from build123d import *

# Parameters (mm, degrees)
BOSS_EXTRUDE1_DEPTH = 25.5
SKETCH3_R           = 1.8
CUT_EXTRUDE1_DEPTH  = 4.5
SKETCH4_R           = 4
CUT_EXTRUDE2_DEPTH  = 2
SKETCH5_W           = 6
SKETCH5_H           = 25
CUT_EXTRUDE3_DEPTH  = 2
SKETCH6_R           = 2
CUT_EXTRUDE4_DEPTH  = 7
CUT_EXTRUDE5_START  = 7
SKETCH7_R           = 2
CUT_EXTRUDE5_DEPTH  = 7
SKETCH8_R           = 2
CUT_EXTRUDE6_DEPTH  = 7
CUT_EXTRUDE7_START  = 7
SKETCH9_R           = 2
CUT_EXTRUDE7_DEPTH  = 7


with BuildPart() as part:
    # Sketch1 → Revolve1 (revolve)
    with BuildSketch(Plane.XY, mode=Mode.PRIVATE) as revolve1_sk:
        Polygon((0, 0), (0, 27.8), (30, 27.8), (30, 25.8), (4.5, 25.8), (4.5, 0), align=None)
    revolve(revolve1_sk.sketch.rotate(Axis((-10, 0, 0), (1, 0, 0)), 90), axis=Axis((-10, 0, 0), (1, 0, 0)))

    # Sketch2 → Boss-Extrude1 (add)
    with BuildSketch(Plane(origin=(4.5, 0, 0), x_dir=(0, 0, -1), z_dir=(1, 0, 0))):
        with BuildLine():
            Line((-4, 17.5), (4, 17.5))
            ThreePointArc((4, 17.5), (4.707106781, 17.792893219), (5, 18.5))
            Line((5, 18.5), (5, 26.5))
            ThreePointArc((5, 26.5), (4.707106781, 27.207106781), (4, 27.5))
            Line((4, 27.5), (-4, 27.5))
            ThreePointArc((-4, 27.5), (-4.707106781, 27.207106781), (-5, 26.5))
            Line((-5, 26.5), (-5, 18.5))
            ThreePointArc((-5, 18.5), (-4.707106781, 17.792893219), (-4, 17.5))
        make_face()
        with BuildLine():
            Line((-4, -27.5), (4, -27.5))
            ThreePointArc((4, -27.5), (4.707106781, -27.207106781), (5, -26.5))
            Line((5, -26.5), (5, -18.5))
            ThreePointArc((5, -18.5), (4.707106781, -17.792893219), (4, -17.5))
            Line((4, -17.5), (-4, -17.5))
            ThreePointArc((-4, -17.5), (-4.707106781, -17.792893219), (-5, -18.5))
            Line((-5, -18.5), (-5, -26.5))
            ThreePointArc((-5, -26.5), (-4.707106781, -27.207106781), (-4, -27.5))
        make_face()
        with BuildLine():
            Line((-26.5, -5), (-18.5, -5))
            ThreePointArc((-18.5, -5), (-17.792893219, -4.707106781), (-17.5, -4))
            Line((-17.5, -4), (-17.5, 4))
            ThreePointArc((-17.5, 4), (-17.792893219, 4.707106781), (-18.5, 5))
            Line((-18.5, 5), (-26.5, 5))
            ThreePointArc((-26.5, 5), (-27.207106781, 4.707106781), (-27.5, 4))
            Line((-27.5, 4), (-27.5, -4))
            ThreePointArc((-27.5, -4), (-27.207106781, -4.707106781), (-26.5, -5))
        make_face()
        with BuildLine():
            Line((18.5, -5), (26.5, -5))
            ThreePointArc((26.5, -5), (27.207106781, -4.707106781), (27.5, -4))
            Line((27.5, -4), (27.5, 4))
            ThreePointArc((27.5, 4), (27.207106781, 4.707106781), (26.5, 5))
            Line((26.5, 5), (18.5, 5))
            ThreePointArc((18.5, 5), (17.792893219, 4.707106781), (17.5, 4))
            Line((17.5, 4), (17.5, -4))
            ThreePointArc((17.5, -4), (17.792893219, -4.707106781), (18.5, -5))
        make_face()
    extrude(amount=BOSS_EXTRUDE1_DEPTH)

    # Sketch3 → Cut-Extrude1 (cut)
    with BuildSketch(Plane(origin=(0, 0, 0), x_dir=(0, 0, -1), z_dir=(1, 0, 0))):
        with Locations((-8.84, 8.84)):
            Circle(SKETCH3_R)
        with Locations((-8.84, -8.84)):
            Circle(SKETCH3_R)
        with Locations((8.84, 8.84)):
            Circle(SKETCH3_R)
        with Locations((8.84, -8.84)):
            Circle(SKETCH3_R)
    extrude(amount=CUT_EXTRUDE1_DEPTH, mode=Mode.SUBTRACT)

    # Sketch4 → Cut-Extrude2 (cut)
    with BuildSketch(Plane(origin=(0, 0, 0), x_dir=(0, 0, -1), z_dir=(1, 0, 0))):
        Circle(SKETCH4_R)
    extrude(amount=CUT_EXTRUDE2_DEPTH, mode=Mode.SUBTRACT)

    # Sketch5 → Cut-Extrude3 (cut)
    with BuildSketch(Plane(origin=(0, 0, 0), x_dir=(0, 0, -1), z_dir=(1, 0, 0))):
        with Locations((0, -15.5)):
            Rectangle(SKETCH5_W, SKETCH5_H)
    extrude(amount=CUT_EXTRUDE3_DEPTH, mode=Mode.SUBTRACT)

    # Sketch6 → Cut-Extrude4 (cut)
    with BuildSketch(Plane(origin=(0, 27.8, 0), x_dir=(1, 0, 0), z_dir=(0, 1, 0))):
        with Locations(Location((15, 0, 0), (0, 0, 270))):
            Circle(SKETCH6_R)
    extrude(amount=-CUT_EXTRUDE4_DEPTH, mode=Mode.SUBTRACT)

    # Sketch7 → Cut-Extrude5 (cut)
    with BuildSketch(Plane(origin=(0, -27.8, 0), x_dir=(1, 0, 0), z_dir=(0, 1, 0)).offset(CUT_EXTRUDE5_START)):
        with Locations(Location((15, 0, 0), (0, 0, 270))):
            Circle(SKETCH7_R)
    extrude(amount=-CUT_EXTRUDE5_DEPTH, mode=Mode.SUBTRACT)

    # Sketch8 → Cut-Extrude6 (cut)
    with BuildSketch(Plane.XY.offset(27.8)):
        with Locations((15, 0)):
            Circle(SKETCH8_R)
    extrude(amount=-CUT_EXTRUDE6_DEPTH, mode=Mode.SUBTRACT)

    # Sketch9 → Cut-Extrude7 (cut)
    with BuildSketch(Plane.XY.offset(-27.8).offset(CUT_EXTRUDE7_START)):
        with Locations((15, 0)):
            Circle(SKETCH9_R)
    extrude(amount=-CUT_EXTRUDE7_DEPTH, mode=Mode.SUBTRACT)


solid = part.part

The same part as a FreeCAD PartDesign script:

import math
import FreeCAD as App
import Part
import Sketcher
from FreeCAD import Vector
Q = App.Units.Quantity


def add_polygon(sketch, points):
    """Adds a closed chain of lines whose ends are joined by coincident constraints."""
    first, n = sketch.GeometryCount, len(points)
    for a, b in zip(points, points[1:] + points[:1]):
        sketch.addGeometry(Part.LineSegment(App.Vector(*a, 0), App.Vector(*b, 0)), False)
    for i in range(n):
        sketch.addConstraint(Sketcher.Constraint("Coincident", first + i, 2, first + (i + 1) % n, 1))

doc = App.newDocument("Part")
body = doc.addObject("PartDesign::Body", "Body")

sketch1 = doc.addObject("Sketcher::SketchObject", "Sketch")
body.addObject(sketch1)
sketch1.AttachmentSupport = (doc.XY_Plane, [""])
sketch1.MapMode = "FlatFace"
add_polygon(sketch1, [(0, 27.8), (0, 0), (4.5, 0), (4.5, 25.8), (30, 25.8), (30, 27.8)])
sketch1.addConstraint([
    Sketcher.Constraint("Vertical", 0),
    Sketcher.Constraint("Horizontal", 1),
    Sketcher.Constraint("Vertical", 2),
    Sketcher.Constraint("Horizontal", 3),
    Sketcher.Constraint("Vertical", 4),
    Sketcher.Constraint("Horizontal", 5),
    Sketcher.Constraint("Coincident", 0, 2, -1, 1),
    Sketcher.Constraint("DistanceX", 5, 2, 5, 1, Q("30 mm")),
    Sketcher.Constraint("DistanceY", 4, 1, 4, 2, Q("2 mm")),
    Sketcher.Constraint("DistanceX", 1, 1, 1, 2, Q("4.5 mm")),
    Sketcher.Constraint("DistanceY", 0, 2, 0, 1, Q("27.8 mm")),
])
revolution = doc.addObject("PartDesign::Revolution", "Revolution")
body.addObject(revolution)
revolution.Profile = sketch1
revolution.ReferenceAxis = (sketch1, ["H_Axis"])
revolution.Angle = 360

sketch2 = doc.addObject("Sketcher::SketchObject", "Sketch001")
body.addObject(sketch2)
sketch2.AttachmentSupport = (doc.YZ_Plane, [""])
sketch2.MapMode = "FlatFace"
sketch2.AttachmentOffset = App.Placement(Vector(0, 0, 4.5), App.Rotation())
sketch2.addGeometry([
    Part.LineSegment(Vector(17.5, 4, 0), Vector(17.5, -4, 0)),
    Part.ArcOfCircle(Part.Circle(Vector(18.5, -4, 0), Vector(0, 0, 1), 1), math.radians(-180), math.radians(-90)),
    Part.LineSegment(Vector(18.5, -5, 0), Vector(26.5, -5, 0)),
    Part.ArcOfCircle(Part.Circle(Vector(26.5, -4, 0), Vector(0, 0, 1), 1), math.radians(-90), math.radians(0)),
    Part.LineSegment(Vector(27.5, -4, 0), Vector(27.5, 4, 0)),
    Part.ArcOfCircle(Part.Circle(Vector(26.5, 4, 0), Vector(0, 0, 1), 1), math.radians(0), math.radians(90)),
    Part.LineSegment(Vector(26.5, 5, 0), Vector(18.5, 5, 0)),
    Part.ArcOfCircle(Part.Circle(Vector(18.5, 4, 0), Vector(0, 0, 1), 1), math.radians(90), math.radians(180)),
    Part.LineSegment(Vector(-27.5, 4, 0), Vector(-27.5, -4, 0)),
    Part.ArcOfCircle(Part.Circle(Vector(-26.5, -4, 0), Vector(0, 0, 1), 1), math.radians(-180), math.radians(-90)),
    Part.LineSegment(Vector(-26.5, -5, 0), Vector(-18.5, -5, 0)),
    Part.ArcOfCircle(Part.Circle(Vector(-18.5, -4, 0), Vector(0, 0, 1), 1), math.radians(-90), math.radians(0)),
    Part.LineSegment(Vector(-17.5, -4, 0), Vector(-17.5, 4, 0)),
    Part.ArcOfCircle(Part.Circle(Vector(-18.5, 4, 0), Vector(0, 0, 1), 1), math.radians(0), math.radians(90)),
    Part.LineSegment(Vector(-18.5, 5, 0), Vector(-26.5, 5, 0)),
    Part.ArcOfCircle(Part.Circle(Vector(-26.5, 4, 0), Vector(0, 0, 1), 1), math.radians(90), math.radians(180)),
    Part.LineSegment(Vector(-5, 26.5, 0), Vector(-5, 18.5, 0)),
    Part.ArcOfCircle(Part.Circle(Vector(-4, 18.5, 0), Vector(0, 0, 1), 1), math.radians(-180), math.radians(-90)),
    Part.LineSegment(Vector(-4, 17.5, 0), Vector(4, 17.5, 0)),
    Part.ArcOfCircle(Part.Circle(Vector(4, 18.5, 0), Vector(0, 0, 1), 1), math.radians(-90), math.radians(0)),
    Part.LineSegment(Vector(5, 18.5, 0), Vector(5, 26.5, 0)),
    Part.ArcOfCircle(Part.Circle(Vector(4, 26.5, 0), Vector(0, 0, 1), 1), math.radians(0), math.radians(90)),
    Part.LineSegment(Vector(4, 27.5, 0), Vector(-4, 27.5, 0)),
    Part.ArcOfCircle(Part.Circle(Vector(-4, 26.5, 0), Vector(0, 0, 1), 1), math.radians(90), math.radians(180)),
    Part.LineSegment(Vector(-5, -18.5, 0), Vector(-5, -26.5, 0)),
    Part.ArcOfCircle(Part.Circle(Vector(-4, -26.5, 0), Vector(0, 0, 1), 1), math.radians(-180), math.radians(-90)),
    Part.LineSegment(Vector(-4, -27.5, 0), Vector(4, -27.5, 0)),
    Part.ArcOfCircle(Part.Circle(Vector(4, -26.5, 0), Vector(0, 0, 1), 1), math.radians(-90), math.radians(0)),
    Part.LineSegment(Vector(5, -26.5, 0), Vector(5, -18.5, 0)),
    Part.ArcOfCircle(Part.Circle(Vector(4, -18.5, 0), Vector(0, 0, 1), 1), math.radians(0), math.radians(90)),
    Part.LineSegment(Vector(4, -17.5, 0), Vector(-4, -17.5, 0)),
    Part.ArcOfCircle(Part.Circle(Vector(-4, -18.5, 0), Vector(0, 0, 1), 1), math.radians(90), math.radians(180)),
], False)
sketch2.addConstraint([
    Sketcher.Constraint("Tangent", 0, 2, 1, 1),
    Sketcher.Constraint("Tangent", 1, 2, 2, 1),
    Sketcher.Constraint("Tangent", 2, 2, 3, 1),
    Sketcher.Constraint("Tangent", 3, 2, 4, 1),
    Sketcher.Constraint("Tangent", 4, 2, 5, 1),
    Sketcher.Constraint("Tangent", 5, 2, 6, 1),
    Sketcher.Constraint("Tangent", 6, 2, 7, 1),
    Sketcher.Constraint("Tangent", 7, 2, 0, 1),
    Sketcher.Constraint("Tangent", 8, 2, 9, 1),
    Sketcher.Constraint("Tangent", 9, 2, 10, 1),
    Sketcher.Constraint("Tangent", 10, 2, 11, 1),
    Sketcher.Constraint("Tangent", 11, 2, 12, 1),
    Sketcher.Constraint("Tangent", 12, 2, 13, 1),
    Sketcher.Constraint("Tangent", 13, 2, 14, 1),
    Sketcher.Constraint("Tangent", 14, 2, 15, 1),
    Sketcher.Constraint("Tangent", 15, 2, 8, 1),
    Sketcher.Constraint("Tangent", 16, 2, 17, 1),
    Sketcher.Constraint("Tangent", 17, 2, 18, 1),
    Sketcher.Constraint("Tangent", 18, 2, 19, 1),
    Sketcher.Constraint("Tangent", 19, 2, 20, 1),
    Sketcher.Constraint("Tangent", 20, 2, 21, 1),
    Sketcher.Constraint("Tangent", 21, 2, 22, 1),
    Sketcher.Constraint("Tangent", 22, 2, 23, 1),
    Sketcher.Constraint("Tangent", 23, 2, 16, 1),
    Sketcher.Constraint("Tangent", 24, 2, 25, 1),
    Sketcher.Constraint("Tangent", 25, 2, 26, 1),
    Sketcher.Constraint("Tangent", 26, 2, 27, 1),
    Sketcher.Constraint("Tangent", 27, 2, 28, 1),
    Sketcher.Constraint("Tangent", 28, 2, 29, 1),
    Sketcher.Constraint("Tangent", 29, 2, 30, 1),
    Sketcher.Constraint("Tangent", 30, 2, 31, 1),
    Sketcher.Constraint("Tangent", 31, 2, 24, 1),
    Sketcher.Constraint("Vertical", 0),
    Sketcher.Constraint("Horizontal", 2),
    Sketcher.Constraint("Vertical", 4),
    Sketcher.Constraint("Horizontal", 6),
    Sketcher.Constraint("Vertical", 8),
    Sketcher.Constraint("Horizontal", 10),
    Sketcher.Constraint("Vertical", 12),
    Sketcher.Constraint("Horizontal", 14),
    Sketcher.Constraint("Vertical", 16),
    Sketcher.Constraint("Horizontal", 18),
    Sketcher.Constraint("Vertical", 20),
    Sketcher.Constraint("Horizontal", 22),
    Sketcher.Constraint("Vertical", 24),
    Sketcher.Constraint("Horizontal", 26),
    Sketcher.Constraint("Vertical", 28),
    Sketcher.Constraint("Horizontal", 30),
    Sketcher.Constraint("Equal", 1, 3),
    Sketcher.Constraint("Equal", 3, 5),
    Sketcher.Constraint("Equal", 5, 7),
    Sketcher.Constraint("Equal", 7, 9),
    Sketcher.Constraint("Equal", 9, 11),
    Sketcher.Constraint("Equal", 11, 13),
    Sketcher.Constraint("Equal", 13, 15),
    Sketcher.Constraint("Equal", 15, 17),
    Sketcher.Constraint("Equal", 17, 19),
    Sketcher.Constraint("Equal", 19, 21),
    Sketcher.Constraint("Equal", 21, 23),
    Sketcher.Constraint("Equal", 23, 25),
    Sketcher.Constraint("Equal", 25, 27),
    Sketcher.Constraint("Equal", 27, 29),
    Sketcher.Constraint("Equal", 29, 31),
    Sketcher.Constraint("Symmetric", 5, 3, 9, 3, -1, 1),
    Sketcher.Constraint("Symmetric", 1, 3, 13, 3, -1, 1),
    Sketcher.Constraint("Symmetric", 21, 3, 25, 3, -1, 1),
    Sketcher.Constraint("Symmetric", 17, 3, 29, 3, -1, 1),
    Sketcher.Constraint("Horizontal", 3, 3, 9, 3),
    Sketcher.Constraint("Vertical", 23, 3, 25, 3),
    Sketcher.Constraint("Equal", 14, 18),
    Sketcher.Constraint("Equal", 30, 0),
    Sketcher.Constraint("Equal", 12, 16),
    Sketcher.Constraint("Radius", 1, Q("1 mm")),
    Sketcher.Constraint("DistanceX", 2, 1, 2, 2, Q("8 mm")),
    Sketcher.Constraint("DistanceX", 9, 3, 1, 3, Q("45 mm")),
    Sketcher.Constraint("DistanceY", -1, 1, 17, 3, Q("18.5 mm")),
])
pad1 = doc.addObject("PartDesign::Pad", "Pad")
body.addObject(pad1)
pad1.Profile = sketch2
pad1.Length = 25.5

sketch3 = doc.addObject("Sketcher::SketchObject", "Sketch002")
body.addObject(sketch3)
sketch3.AttachmentSupport = (doc.YZ_Plane, [""])
sketch3.MapMode = "FlatFace"
sketch3.addGeometry([
    Part.Circle(Vector(8.84, 8.84, 0), Vector(0, 0, 1), 1.8),
    Part.Circle(Vector(-8.84, 8.84, 0), Vector(0, 0, 1), 1.8),
    Part.Circle(Vector(8.84, -8.84, 0), Vector(0, 0, 1), 1.8),
    Part.Circle(Vector(-8.84, -8.84, 0), Vector(0, 0, 1), 1.8),
], False)
sketch3.addConstraint([
    Sketcher.Constraint("Equal", 0, 1),
    Sketcher.Constraint("Equal", 1, 2),
    Sketcher.Constraint("Equal", 2, 3),
    Sketcher.Constraint("Symmetric", 1, 3, 2, 3, -1, 1),
    Sketcher.Constraint("Symmetric", 0, 3, 3, 3, -1, 1),
    Sketcher.Constraint("Symmetric", 0, 3, 1, 3, -2),
    Sketcher.Constraint("Diameter", 0, Q("3.6 mm")),
    Sketcher.Constraint("DistanceX", -1, 1, 0, 3, Q("8.84 mm")),
    Sketcher.Constraint("DistanceY", -1, 1, 0, 3, Q("8.84 mm")),
])
pocket1 = doc.addObject("PartDesign::Pocket", "Pocket")
body.addObject(pocket1)
pocket1.Profile = sketch3
pocket1.Length = 4.5
pocket1.Reversed = True

sketch4 = doc.addObject("Sketcher::SketchObject", "Sketch003")
body.addObject(sketch4)
sketch4.AttachmentSupport = (doc.YZ_Plane, [""])
sketch4.MapMode = "FlatFace"
sketch4.addGeometry(Part.Circle(Vector(0, 0, 0), Vector(0, 0, 1), 4), False)
sketch4.addConstraint([
    Sketcher.Constraint("Coincident", 0, 3, -1, 1),
    Sketcher.Constraint("Diameter", 0, Q("8 mm")),
])
pocket2 = doc.addObject("PartDesign::Pocket", "Pocket001")
body.addObject(pocket2)
pocket2.Profile = sketch4
pocket2.Length = 2
pocket2.Reversed = True

sketch5 = doc.addObject("Sketcher::SketchObject", "Sketch004")
body.addObject(sketch5)
sketch5.AttachmentSupport = (doc.YZ_Plane, [""])
sketch5.MapMode = "FlatFace"
add_polygon(sketch5, [(-3, 3), (-28, 3), (-28, -3), (-3, -3)])
sketch5.addConstraint([
    Sketcher.Constraint("Horizontal", 0),
    Sketcher.Constraint("Vertical", 1),
    Sketcher.Constraint("Horizontal", 2),
    Sketcher.Constraint("Vertical", 3),
    Sketcher.Constraint("DistanceX", 0, 2, 0, 1, Q("25 mm")),
    Sketcher.Constraint("DistanceY", 1, 2, 1, 1, Q("6 mm")),
    Sketcher.Constraint("DistanceX", 0, 2, -1, 1, Q("28 mm")),
    Sketcher.Constraint("DistanceY", -1, 1, 0, 2, Q("3 mm")),
])
pocket3 = doc.addObject("PartDesign::Pocket", "Pocket002")
body.addObject(pocket3)
pocket3.Profile = sketch5
pocket3.Length = 2
pocket3.Reversed = True

sketch6 = doc.addObject("Sketcher::SketchObject", "Sketch005")
body.addObject(sketch6)
sketch6.AttachmentSupport = (doc.XZ_Plane, [""])
sketch6.MapMode = "FlatFace"
sketch6.AttachmentOffset = App.Placement(Vector(0, 0, -27.8), App.Rotation())
sketch6.addGeometry(Part.Circle(Vector(15, 0, 0), Vector(0, 0, 1), 2), False)
sketch6.addConstraint([
    Sketcher.Constraint("PointOnObject", 0, 3, -1),
    Sketcher.Constraint("Diameter", 0, Q("4 mm")),
    Sketcher.Constraint("DistanceX", -1, 1, 0, 3, Q("15 mm")),
])
pocket4 = doc.addObject("PartDesign::Pocket", "Pocket003")
body.addObject(pocket4)
pocket4.Profile = sketch6
pocket4.Length = 7
pocket4.Reversed = True

sketch7 = doc.addObject("Sketcher::SketchObject", "Sketch006")
body.addObject(sketch7)
sketch7.AttachmentSupport = (doc.XZ_Plane, [""])
sketch7.MapMode = "FlatFace"
sketch7.AttachmentOffset = App.Placement(Vector(0, 0, 20.8), App.Rotation())
sketch7.addGeometry(Part.Circle(Vector(15, 0, 0), Vector(0, 0, 1), 2), False)
sketch7.addConstraint([
    Sketcher.Constraint("PointOnObject", 0, 3, -1),
    Sketcher.Constraint("Diameter", 0, Q("4 mm")),
    Sketcher.Constraint("DistanceX", -1, 1, 0, 3, Q("15 mm")),
])
pocket5 = doc.addObject("PartDesign::Pocket", "Pocket004")
body.addObject(pocket5)
pocket5.Profile = sketch7
pocket5.Length = 7
pocket5.Reversed = True

sketch8 = doc.addObject("Sketcher::SketchObject", "Sketch007")
body.addObject(sketch8)
sketch8.AttachmentSupport = (doc.XY_Plane, [""])
sketch8.MapMode = "FlatFace"
sketch8.AttachmentOffset = App.Placement(Vector(0, 0, 27.8), App.Rotation())
sketch8.addGeometry(Part.Circle(Vector(15, 0, 0), Vector(0, 0, 1), 2), False)
sketch8.addConstraint([
    Sketcher.Constraint("PointOnObject", 0, 3, -1),
    Sketcher.Constraint("Diameter", 0, Q("4 mm")),
    Sketcher.Constraint("DistanceX", -1, 1, 0, 3, Q("15 mm")),
])
pocket6 = doc.addObject("PartDesign::Pocket", "Pocket005")
body.addObject(pocket6)
pocket6.Profile = sketch8
pocket6.Length = 7

sketch9 = doc.addObject("Sketcher::SketchObject", "Sketch008")
body.addObject(sketch9)
sketch9.AttachmentSupport = (doc.XY_Plane, [""])
sketch9.MapMode = "FlatFace"
sketch9.AttachmentOffset = App.Placement(Vector(0, 0, -20.8), App.Rotation())
sketch9.addGeometry(Part.Circle(Vector(15, 0, 0), Vector(0, 0, 1), 2), False)
sketch9.addConstraint([
    Sketcher.Constraint("PointOnObject", 0, 3, -1),
    Sketcher.Constraint("Diameter", 0, Q("4 mm")),
    Sketcher.Constraint("DistanceX", -1, 1, 0, 3, Q("15 mm")),
])
pocket7 = doc.addObject("PartDesign::Pocket", "Pocket006")
body.addObject(pocket7)
pocket7.Profile = sketch9
pocket7.Length = 7

doc.recompute()
